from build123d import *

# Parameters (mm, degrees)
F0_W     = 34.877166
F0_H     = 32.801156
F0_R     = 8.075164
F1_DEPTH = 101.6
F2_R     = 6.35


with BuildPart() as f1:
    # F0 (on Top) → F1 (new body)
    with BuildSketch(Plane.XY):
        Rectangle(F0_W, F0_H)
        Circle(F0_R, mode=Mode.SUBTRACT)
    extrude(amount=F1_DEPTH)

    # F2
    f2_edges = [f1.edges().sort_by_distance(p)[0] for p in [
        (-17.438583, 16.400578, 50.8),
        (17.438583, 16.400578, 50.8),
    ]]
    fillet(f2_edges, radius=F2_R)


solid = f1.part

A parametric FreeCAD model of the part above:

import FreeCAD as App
import Part
import Sketcher
Q = App.Units.Quantity


def edges_at(feature, points):
    """Names of the edges that pass closest to the given points."""
    edges = feature.Shape.Edges
    near = lambda p: min(range(len(edges)), key=lambda i: edges[i].distToShape(Part.Vertex(*p))[0])
    return sorted({f"Edge{near(p) + 1}" for p in points})


def add_polygon(sketch, points):
    """Adds a closed chain of lines whose ends are joined by coincident constraints."""
    first, n = sketch.GeometryCount, len(points)
    for a, b in zip(points, points[1:] + points[:1]):
        sketch.addGeometry(Part.LineSegment(App.Vector(*a, 0), App.Vector(*b, 0)), False)
    for i in range(n):
        sketch.addConstraint(Sketcher.Constraint("Coincident", first + i, 2, first + (i + 1) % n, 1))

doc = App.newDocument("Part")
body = doc.addObject("PartDesign::Body", "Body")

sketch1 = body.newObject("Sketcher::SketchObject", "Sketch")
sketch1.AttachmentSupport = (doc.getObject("XY_Plane"), [""])
sketch1.MapMode = "FlatFace"
add_polygon(sketch1, [(-17, 16), (-17, -16), (17, -16), (17, 16)])
sketch1.addGeometry(Part.Circle(App.Vector(0, 0, 0), App.Vector(0, 0, 1), 8), False)
sketch1.addConstraint(Sketcher.Constraint("Vertical", 0))
sketch1.addConstraint(Sketcher.Constraint("Horizontal", 1))
sketch1.addConstraint(Sketcher.Constraint("Vertical", 2))
sketch1.addConstraint(Sketcher.Constraint("Horizontal", 3))
sketch1.addConstraint(Sketcher.Constraint("Coincident", 4, 3, -1, 1))
sketch1.addConstraint(Sketcher.Constraint("Symmetric", 0, 2, 2, 2, -1, 1))
sketch1.addConstraint(Sketcher.Constraint("Diameter", 4, Q("16.150328 mm")))
sketch1.addConstraint(Sketcher.Constraint("DistanceX", 1, 1, 1, 2, Q("34.877166 mm")))
sketch1.addConstraint(Sketcher.Constraint("DistanceY", 0, 2, 0, 1, Q("32.801156 mm")))
pad1 = body.newObject("PartDesign::Pad", "Pad")
pad1.Profile = sketch1
pad1.Length = Q("4 in")
doc.recompute()

fillet = body.newObject("PartDesign::Fillet", "Fillet")
fillet.Base = (pad1, edges_at(pad1, [(-17.439, 16.401, 50.8), (17.439, 16.401, 50.8)]))
fillet.Radius = Q("0.25 in")

doc.recompute()
